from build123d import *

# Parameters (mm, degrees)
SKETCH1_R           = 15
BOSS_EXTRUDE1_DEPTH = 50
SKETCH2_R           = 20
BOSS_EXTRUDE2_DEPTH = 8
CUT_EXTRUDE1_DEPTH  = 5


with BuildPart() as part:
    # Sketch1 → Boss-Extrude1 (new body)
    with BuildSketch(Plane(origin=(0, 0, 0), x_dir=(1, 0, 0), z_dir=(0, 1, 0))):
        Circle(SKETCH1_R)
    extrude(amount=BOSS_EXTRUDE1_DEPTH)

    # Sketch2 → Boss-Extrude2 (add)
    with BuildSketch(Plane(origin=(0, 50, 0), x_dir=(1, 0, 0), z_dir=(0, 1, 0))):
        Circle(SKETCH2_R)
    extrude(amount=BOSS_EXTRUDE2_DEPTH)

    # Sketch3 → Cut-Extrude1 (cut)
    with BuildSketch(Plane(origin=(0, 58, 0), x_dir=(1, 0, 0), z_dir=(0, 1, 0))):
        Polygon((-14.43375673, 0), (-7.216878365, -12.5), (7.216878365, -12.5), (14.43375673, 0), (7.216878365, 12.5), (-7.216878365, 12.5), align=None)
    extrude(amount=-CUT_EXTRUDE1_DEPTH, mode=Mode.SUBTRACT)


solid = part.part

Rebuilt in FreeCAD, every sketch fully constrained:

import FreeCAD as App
import Part
import Sketcher
Q = App.Units.Quantity

doc = App.newDocument("Part")
body = doc.addObject("PartDesign::Body", "Body")

# Sketch on XZ plane
sketch1 = body.newObject("Sketcher::SketchObject", "Sketch")
sketch1.AttachmentSupport = (doc.getObject("XZ_Plane"), [""])
sketch1.MapMode = "FlatFace"
sketch1.addGeometry(Part.Circle(App.Vector(0, 0, 0), App.Vector(0, 0, 1), 15), False)
sketch1.addConstraint([
    Sketcher.Constraint("Coincident", 0, 3, -1, 1),
    Sketcher.Constraint("Diameter", 0, 30.0),
])
pad1 = body.newObject("PartDesign::Pad", "Pad")
pad1.Profile = sketch1
pad1.Length = 50
pad1.Reversed = True

# Sketch on XZ plane
sketch2 = body.newObject("Sketcher::SketchObject", "Sketch001")
sketch2.AttachmentSupport = (doc.getObject("XZ_Plane"), [""])
sketch2.MapMode = "FlatFace"
sketch2.AttachmentOffset = App.Placement(App.Vector(0, 0, -50), App.Rotation())
sketch2.addGeometry(Part.Circle(App.Vector(0, 0, 0), App.Vector(0, 0, 1), 20), False)
sketch2.addConstraint([
    Sketcher.Constraint("Coincident", 0, 3, -1, 1),
    Sketcher.Constraint("Diameter", 0, 40.0),
])
pad2 = body.newObject("PartDesign::Pad", "Pad001")
pad2.Profile = sketch2
pad2.Length = 8
pad2.Reversed = True

# Sketch on XZ plane
sketch3 = body.newObject("Sketcher::SketchObject", "Sketch002")
sketch3.AttachmentSupport = (doc.getObject("XZ_Plane"), [""])
sketch3.MapMode = "FlatFace"
sketch3.AttachmentOffset = App.Placement(App.Vector(0, 0, -58), App.Rotation())
sketch3.addGeometry([
    Part.LineSegment(App.Vector(-14, 0, 0), App.Vector(-7, 12, 0)),  # 0
    Part.LineSegment(App.Vector(-7, 12, 0), App.Vector(7, 12, 0)),  # 1
    Part.LineSegment(App.Vector(7, 12, 0), App.Vector(14, 0, 0)),  # 2
    Part.LineSegment(App.Vector(14, 0, 0), App.Vector(7, -12, 0)),  # 3
    Part.LineSegment(App.Vector(7, -12, 0), App.Vector(-7, -12, 0)),  # 4
    Part.LineSegment(App.Vector(-7, -12, 0), App.Vector(-14, 0, 0)),  # 5
], False)
sketch3.addConstraint([
    Sketcher.Constraint("Coincident", 0, 2, 1, 1),
    Sketcher.Constraint("Coincident", 1, 2, 2, 1),
    Sketcher.Constraint("Coincident", 2, 2, 3, 1),
    Sketcher.Constraint("Coincident", 3, 2, 4, 1),
    Sketcher.Constraint("Coincident", 4, 2, 5, 1),
    Sketcher.Constraint("Coincident", 5, 2, 0, 1),
    Sketcher.Constraint("Horizontal", 1),
    Sketcher.Constraint("Horizontal", 4),
    Sketcher.Constraint("Symmetric", 0, 2, 3, 2, -1, 1),
    Sketcher.Constraint("Symmetric", 2, 2, 5, 2, -1, 1),
    Sketcher.Constraint("PointOnObject", 2, 2, -1),
    Sketcher.Constraint("Parallel", 2, 5),
    Sketcher.Constraint("Vertical", 1, 2, 3, 2),
    Sketcher.Constraint("Angle", 0, Q("60 deg")),
    Sketcher.Constraint("DistanceY", 3, 2, 1, 2, 25.0),
    Sketcher.Constraint("DistanceX", 1, 1, 1, 2, 14.433757),
])
pocket1 = body.newObject("PartDesign::Pocket", "Pocket")
pocket1.Profile = sketch3
pocket1.Length = 5
pocket1.Reversed = True

doc.recompute()
